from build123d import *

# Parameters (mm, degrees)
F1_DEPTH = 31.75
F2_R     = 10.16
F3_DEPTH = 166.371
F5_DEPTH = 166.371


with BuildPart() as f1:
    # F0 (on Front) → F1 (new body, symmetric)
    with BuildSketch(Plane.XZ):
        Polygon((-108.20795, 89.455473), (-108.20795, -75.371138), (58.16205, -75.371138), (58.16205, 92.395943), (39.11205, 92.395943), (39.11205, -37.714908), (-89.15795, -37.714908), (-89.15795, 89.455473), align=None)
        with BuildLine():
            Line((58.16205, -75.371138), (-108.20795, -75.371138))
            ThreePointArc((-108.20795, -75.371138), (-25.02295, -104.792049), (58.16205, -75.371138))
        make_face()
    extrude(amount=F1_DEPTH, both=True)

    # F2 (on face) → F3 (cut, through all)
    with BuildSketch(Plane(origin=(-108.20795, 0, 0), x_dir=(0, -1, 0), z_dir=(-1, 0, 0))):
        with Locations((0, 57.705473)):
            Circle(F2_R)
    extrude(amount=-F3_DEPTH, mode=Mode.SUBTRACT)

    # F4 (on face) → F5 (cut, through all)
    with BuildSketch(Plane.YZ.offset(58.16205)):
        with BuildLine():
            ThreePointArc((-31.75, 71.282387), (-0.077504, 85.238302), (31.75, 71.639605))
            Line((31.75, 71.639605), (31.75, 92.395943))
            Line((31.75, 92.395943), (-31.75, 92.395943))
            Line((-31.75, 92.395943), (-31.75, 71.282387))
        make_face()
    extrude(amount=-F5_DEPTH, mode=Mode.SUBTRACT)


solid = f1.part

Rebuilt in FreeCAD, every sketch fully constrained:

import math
import FreeCAD as App
import Part
import Sketcher
from FreeCAD import Vector
Q = App.Units.Quantity

doc = App.newDocument("Part")
params = doc.addObject("Spreadsheet::Sheet", "Params")
for row, (alias, value) in enumerate([
    ("sketch1_width", "0.75 in"),
    ("sketch1_width2", "5.05 in"),
    ("pad1_length", "2.5 in"),
    ("sketch2_diameter", "0.8 in"),
    ("sketch3_width", "2.5 in"),
], start=1):
    params.set(f"A{row}", alias)
    params.set(f"B{row}", "=" + value)
    params.setAlias(f"B{row}", alias)

body = doc.addObject("PartDesign::Body", "Body")

# Sketch on XZ plane
sketch1 = body.newObject("Sketcher::SketchObject", "Sketch")
sketch1.AttachmentSupport = (doc.getObject("XZ_Plane"), [""])
sketch1.MapMode = "FlatFace"
sketch1.addGeometry(Part.LineSegment(Vector(-108.20795, 89.455473, 0), Vector(-108.20795, -75.371138, 0)), False)
sketch1.addGeometry(Part.ArcOfCircle(Part.Circle(Vector(-25.02295, 27.517488, 0), Vector(0, 0, 1), 132.309537), math.radians(-128.955386), math.radians(-51.044614)), False)
sketch1.addGeometry(Part.LineSegment(Vector(58.16205, -75.371138, 0), Vector(58.16205, 92.395943, 0)), False)
sketch1.addGeometry(Part.LineSegment(Vector(58.16205, 92.395943, 0), Vector(39.11205, 92.395943, 0)), False)
sketch1.addGeometry(Part.LineSegment(Vector(39.11205, 92.395943, 0), Vector(39.11205, -37.714908, 0)), False)
sketch1.addGeometry(Part.LineSegment(Vector(39.11205, -37.714908, 0), Vector(-89.15795, -37.714908, 0)), False)
sketch1.addGeometry(Part.LineSegment(Vector(-89.15795, -37.714908, 0), Vector(-89.15795, 89.455473, 0)), False)
sketch1.addGeometry(Part.LineSegment(Vector(-89.15795, 89.455473, 0), Vector(-108.20795, 89.455473, 0)), False)
sketch1.addConstraint(Sketcher.Constraint("Coincident", 0, 2, 1, 1))
sketch1.addConstraint(Sketcher.Constraint("Coincident", 1, 2, 2, 1))
sketch1.addConstraint(Sketcher.Constraint("Coincident", 2, 2, 3, 1))
sketch1.addConstraint(Sketcher.Constraint("Coincident", 3, 2, 4, 1))
sketch1.addConstraint(Sketcher.Constraint("Coincident", 4, 2, 5, 1))
sketch1.addConstraint(Sketcher.Constraint("Coincident", 5, 2, 6, 1))
sketch1.addConstraint(Sketcher.Constraint("Coincident", 6, 2, 7, 1))
sketch1.addConstraint(Sketcher.Constraint("Coincident", 7, 2, 0, 1))
sketch1.addConstraint(Sketcher.Constraint("Vertical", 0))
sketch1.addConstraint(Sketcher.Constraint("Vertical", 2))
sketch1.addConstraint(Sketcher.Constraint("Horizontal", 3))
sketch1.addConstraint(Sketcher.Constraint("Vertical", 4))
sketch1.addConstraint(Sketcher.Constraint("Horizontal", 5))
sketch1.addConstraint(Sketcher.Constraint("Vertical", 6))
sketch1.addConstraint(Sketcher.Constraint("Horizontal", 7))
sketch1.addConstraint(Sketcher.Constraint("Horizontal", 0, 2, 1, 2))
sketch1.addConstraint(Sketcher.Constraint("Equal", 3, 7))
sketch1.addConstraint(Sketcher.Constraint("DistanceX", 3, 2, 3, 1, Q("0.75 in")))
sketch1.addConstraint(Sketcher.Constraint("DistanceX", 5, 2, 5, 1, Q("5.05 in")))
sketch1.addConstraint(Sketcher.Constraint("Radius", 1, 132.309537))
sketch1.addConstraint(Sketcher.Constraint("DistanceY", 0, 2, 0, 1, 164.826611))
sketch1.addConstraint(Sketcher.Constraint("DistanceY", 2, 1, 2, 2, 167.767081))
sketch1.addConstraint(Sketcher.Constraint("DistanceY", 4, 2, 4, 1, 130.110851))
sketch1.addConstraint(Sketcher.Constraint("DistanceX", 1, 3, -1, 1, 25.02295))
sketch1.addConstraint(Sketcher.Constraint("DistanceY", -1, 1, 1, 3, 27.517488))
sketch1.setExpression("Constraints[17]", "Params.sketch1_width")
sketch1.setExpression("Constraints[18]", "Params.sketch1_width2")
pad1 = body.newObject("PartDesign::Pad", "Pad")
pad1.Profile = sketch1
pad1.setExpression("Length", "Params.pad1_length")
pad1.Midplane = True

# Sketch on YZ plane
sketch2 = body.newObject("Sketcher::SketchObject", "Sketch001")
sketch2.AttachmentSupport = (doc.getObject("YZ_Plane"), [""])
sketch2.MapMode = "FlatFace"
sketch2.AttachmentOffset = App.Placement(Vector(0, 0, -108.20795), App.Rotation())
sketch2.addGeometry(Part.Circle(Vector(0, 57.705473, 0), Vector(0, 0, 1), 10.16), False)
sketch2.addConstraint(Sketcher.Constraint("PointOnObject", 0, 3, -2))
sketch2.addConstraint(Sketcher.Constraint("Diameter", 0, Q("0.8 in")))
sketch2.addConstraint(Sketcher.Constraint("DistanceY", -1, 1, 0, 3, 57.705473))
sketch2.setExpression("Constraints[1]", "Params.sketch2_diameter")
pocket1 = body.newObject("PartDesign::Pocket", "Pocket")
pocket1.Profile = sketch2
pocket1.Type = "ThroughAll"
pocket1.Reversed = True

# Sketch on YZ plane
sketch3 = body.newObject("Sketcher::SketchObject", "Sketch002")
sketch3.AttachmentSupport = (doc.getObject("YZ_Plane"), [""])
sketch3.MapMode = "FlatFace"
sketch3.AttachmentOffset = App.Placement(Vector(0, 0, 58.16205), App.Rotation())
sketch3.addGeometry(Part.ArcOfCircle(Part.Circle(Vector(0.167052, 41.765483, 0), Vector(0, 0, 1), 43.473507), math.radians(43.407289), math.radians(137.237336)), False)
sketch3.addGeometry(Part.LineSegment(Vector(31.75, 71.639605, 0), Vector(31.75, 92.395943, 0)), False)
sketch3.addGeometry(Part.LineSegment(Vector(31.75, 92.395943, 0), Vector(-31.75, 92.395943, 0)), False)
sketch3.addGeometry(Part.LineSegment(Vector(-31.75, 92.395943, 0), Vector(-31.75, 71.282387, 0)), False)
sketch3.addConstraint(Sketcher.Constraint("Coincident", 0, 1, 1, 1))
sketch3.addConstraint(Sketcher.Constraint("Coincident", 1, 2, 2, 1))
sketch3.addConstraint(Sketcher.Constraint("Coincident", 2, 2, 3, 1))
sketch3.addConstraint(Sketcher.Constraint("Coincident", 3, 2, 0, 2))
sketch3.addConstraint(Sketcher.Constraint("Vertical", 1))
sketch3.addConstraint(Sketcher.Constraint("Horizontal", 2))
sketch3.addConstraint(Sketcher.Constraint("Vertical", 3))
sketch3.addConstraint(Sketcher.Constraint("DistanceX", 2, 2, 2, 1, Q("2.5 in")))
sketch3.addConstraint(Sketcher.Constraint("DistanceX", -1, 1, 0, 1, Q("1.25 in")))
sketch3.addConstraint(Sketcher.Constraint("Radius", 0, 43.473507))
sketch3.addConstraint(Sketcher.Constraint("DistanceY", 1, 1, 1, 2, 20.756338))
sketch3.addConstraint(Sketcher.Constraint("DistanceY", 3, 2, 3, 1, 21.113556))
sketch3.addConstraint(Sketcher.Constraint("DistanceY", -1, 1, 0, 3, 41.765483))
sketch3.setExpression("Constraints[7]", "Params.sketch3_width")
pocket2 = body.newObject("PartDesign::Pocket", "Pocket001")
pocket2.Profile = sketch3
pocket2.Type = "ThroughAll"

doc.recompute()
